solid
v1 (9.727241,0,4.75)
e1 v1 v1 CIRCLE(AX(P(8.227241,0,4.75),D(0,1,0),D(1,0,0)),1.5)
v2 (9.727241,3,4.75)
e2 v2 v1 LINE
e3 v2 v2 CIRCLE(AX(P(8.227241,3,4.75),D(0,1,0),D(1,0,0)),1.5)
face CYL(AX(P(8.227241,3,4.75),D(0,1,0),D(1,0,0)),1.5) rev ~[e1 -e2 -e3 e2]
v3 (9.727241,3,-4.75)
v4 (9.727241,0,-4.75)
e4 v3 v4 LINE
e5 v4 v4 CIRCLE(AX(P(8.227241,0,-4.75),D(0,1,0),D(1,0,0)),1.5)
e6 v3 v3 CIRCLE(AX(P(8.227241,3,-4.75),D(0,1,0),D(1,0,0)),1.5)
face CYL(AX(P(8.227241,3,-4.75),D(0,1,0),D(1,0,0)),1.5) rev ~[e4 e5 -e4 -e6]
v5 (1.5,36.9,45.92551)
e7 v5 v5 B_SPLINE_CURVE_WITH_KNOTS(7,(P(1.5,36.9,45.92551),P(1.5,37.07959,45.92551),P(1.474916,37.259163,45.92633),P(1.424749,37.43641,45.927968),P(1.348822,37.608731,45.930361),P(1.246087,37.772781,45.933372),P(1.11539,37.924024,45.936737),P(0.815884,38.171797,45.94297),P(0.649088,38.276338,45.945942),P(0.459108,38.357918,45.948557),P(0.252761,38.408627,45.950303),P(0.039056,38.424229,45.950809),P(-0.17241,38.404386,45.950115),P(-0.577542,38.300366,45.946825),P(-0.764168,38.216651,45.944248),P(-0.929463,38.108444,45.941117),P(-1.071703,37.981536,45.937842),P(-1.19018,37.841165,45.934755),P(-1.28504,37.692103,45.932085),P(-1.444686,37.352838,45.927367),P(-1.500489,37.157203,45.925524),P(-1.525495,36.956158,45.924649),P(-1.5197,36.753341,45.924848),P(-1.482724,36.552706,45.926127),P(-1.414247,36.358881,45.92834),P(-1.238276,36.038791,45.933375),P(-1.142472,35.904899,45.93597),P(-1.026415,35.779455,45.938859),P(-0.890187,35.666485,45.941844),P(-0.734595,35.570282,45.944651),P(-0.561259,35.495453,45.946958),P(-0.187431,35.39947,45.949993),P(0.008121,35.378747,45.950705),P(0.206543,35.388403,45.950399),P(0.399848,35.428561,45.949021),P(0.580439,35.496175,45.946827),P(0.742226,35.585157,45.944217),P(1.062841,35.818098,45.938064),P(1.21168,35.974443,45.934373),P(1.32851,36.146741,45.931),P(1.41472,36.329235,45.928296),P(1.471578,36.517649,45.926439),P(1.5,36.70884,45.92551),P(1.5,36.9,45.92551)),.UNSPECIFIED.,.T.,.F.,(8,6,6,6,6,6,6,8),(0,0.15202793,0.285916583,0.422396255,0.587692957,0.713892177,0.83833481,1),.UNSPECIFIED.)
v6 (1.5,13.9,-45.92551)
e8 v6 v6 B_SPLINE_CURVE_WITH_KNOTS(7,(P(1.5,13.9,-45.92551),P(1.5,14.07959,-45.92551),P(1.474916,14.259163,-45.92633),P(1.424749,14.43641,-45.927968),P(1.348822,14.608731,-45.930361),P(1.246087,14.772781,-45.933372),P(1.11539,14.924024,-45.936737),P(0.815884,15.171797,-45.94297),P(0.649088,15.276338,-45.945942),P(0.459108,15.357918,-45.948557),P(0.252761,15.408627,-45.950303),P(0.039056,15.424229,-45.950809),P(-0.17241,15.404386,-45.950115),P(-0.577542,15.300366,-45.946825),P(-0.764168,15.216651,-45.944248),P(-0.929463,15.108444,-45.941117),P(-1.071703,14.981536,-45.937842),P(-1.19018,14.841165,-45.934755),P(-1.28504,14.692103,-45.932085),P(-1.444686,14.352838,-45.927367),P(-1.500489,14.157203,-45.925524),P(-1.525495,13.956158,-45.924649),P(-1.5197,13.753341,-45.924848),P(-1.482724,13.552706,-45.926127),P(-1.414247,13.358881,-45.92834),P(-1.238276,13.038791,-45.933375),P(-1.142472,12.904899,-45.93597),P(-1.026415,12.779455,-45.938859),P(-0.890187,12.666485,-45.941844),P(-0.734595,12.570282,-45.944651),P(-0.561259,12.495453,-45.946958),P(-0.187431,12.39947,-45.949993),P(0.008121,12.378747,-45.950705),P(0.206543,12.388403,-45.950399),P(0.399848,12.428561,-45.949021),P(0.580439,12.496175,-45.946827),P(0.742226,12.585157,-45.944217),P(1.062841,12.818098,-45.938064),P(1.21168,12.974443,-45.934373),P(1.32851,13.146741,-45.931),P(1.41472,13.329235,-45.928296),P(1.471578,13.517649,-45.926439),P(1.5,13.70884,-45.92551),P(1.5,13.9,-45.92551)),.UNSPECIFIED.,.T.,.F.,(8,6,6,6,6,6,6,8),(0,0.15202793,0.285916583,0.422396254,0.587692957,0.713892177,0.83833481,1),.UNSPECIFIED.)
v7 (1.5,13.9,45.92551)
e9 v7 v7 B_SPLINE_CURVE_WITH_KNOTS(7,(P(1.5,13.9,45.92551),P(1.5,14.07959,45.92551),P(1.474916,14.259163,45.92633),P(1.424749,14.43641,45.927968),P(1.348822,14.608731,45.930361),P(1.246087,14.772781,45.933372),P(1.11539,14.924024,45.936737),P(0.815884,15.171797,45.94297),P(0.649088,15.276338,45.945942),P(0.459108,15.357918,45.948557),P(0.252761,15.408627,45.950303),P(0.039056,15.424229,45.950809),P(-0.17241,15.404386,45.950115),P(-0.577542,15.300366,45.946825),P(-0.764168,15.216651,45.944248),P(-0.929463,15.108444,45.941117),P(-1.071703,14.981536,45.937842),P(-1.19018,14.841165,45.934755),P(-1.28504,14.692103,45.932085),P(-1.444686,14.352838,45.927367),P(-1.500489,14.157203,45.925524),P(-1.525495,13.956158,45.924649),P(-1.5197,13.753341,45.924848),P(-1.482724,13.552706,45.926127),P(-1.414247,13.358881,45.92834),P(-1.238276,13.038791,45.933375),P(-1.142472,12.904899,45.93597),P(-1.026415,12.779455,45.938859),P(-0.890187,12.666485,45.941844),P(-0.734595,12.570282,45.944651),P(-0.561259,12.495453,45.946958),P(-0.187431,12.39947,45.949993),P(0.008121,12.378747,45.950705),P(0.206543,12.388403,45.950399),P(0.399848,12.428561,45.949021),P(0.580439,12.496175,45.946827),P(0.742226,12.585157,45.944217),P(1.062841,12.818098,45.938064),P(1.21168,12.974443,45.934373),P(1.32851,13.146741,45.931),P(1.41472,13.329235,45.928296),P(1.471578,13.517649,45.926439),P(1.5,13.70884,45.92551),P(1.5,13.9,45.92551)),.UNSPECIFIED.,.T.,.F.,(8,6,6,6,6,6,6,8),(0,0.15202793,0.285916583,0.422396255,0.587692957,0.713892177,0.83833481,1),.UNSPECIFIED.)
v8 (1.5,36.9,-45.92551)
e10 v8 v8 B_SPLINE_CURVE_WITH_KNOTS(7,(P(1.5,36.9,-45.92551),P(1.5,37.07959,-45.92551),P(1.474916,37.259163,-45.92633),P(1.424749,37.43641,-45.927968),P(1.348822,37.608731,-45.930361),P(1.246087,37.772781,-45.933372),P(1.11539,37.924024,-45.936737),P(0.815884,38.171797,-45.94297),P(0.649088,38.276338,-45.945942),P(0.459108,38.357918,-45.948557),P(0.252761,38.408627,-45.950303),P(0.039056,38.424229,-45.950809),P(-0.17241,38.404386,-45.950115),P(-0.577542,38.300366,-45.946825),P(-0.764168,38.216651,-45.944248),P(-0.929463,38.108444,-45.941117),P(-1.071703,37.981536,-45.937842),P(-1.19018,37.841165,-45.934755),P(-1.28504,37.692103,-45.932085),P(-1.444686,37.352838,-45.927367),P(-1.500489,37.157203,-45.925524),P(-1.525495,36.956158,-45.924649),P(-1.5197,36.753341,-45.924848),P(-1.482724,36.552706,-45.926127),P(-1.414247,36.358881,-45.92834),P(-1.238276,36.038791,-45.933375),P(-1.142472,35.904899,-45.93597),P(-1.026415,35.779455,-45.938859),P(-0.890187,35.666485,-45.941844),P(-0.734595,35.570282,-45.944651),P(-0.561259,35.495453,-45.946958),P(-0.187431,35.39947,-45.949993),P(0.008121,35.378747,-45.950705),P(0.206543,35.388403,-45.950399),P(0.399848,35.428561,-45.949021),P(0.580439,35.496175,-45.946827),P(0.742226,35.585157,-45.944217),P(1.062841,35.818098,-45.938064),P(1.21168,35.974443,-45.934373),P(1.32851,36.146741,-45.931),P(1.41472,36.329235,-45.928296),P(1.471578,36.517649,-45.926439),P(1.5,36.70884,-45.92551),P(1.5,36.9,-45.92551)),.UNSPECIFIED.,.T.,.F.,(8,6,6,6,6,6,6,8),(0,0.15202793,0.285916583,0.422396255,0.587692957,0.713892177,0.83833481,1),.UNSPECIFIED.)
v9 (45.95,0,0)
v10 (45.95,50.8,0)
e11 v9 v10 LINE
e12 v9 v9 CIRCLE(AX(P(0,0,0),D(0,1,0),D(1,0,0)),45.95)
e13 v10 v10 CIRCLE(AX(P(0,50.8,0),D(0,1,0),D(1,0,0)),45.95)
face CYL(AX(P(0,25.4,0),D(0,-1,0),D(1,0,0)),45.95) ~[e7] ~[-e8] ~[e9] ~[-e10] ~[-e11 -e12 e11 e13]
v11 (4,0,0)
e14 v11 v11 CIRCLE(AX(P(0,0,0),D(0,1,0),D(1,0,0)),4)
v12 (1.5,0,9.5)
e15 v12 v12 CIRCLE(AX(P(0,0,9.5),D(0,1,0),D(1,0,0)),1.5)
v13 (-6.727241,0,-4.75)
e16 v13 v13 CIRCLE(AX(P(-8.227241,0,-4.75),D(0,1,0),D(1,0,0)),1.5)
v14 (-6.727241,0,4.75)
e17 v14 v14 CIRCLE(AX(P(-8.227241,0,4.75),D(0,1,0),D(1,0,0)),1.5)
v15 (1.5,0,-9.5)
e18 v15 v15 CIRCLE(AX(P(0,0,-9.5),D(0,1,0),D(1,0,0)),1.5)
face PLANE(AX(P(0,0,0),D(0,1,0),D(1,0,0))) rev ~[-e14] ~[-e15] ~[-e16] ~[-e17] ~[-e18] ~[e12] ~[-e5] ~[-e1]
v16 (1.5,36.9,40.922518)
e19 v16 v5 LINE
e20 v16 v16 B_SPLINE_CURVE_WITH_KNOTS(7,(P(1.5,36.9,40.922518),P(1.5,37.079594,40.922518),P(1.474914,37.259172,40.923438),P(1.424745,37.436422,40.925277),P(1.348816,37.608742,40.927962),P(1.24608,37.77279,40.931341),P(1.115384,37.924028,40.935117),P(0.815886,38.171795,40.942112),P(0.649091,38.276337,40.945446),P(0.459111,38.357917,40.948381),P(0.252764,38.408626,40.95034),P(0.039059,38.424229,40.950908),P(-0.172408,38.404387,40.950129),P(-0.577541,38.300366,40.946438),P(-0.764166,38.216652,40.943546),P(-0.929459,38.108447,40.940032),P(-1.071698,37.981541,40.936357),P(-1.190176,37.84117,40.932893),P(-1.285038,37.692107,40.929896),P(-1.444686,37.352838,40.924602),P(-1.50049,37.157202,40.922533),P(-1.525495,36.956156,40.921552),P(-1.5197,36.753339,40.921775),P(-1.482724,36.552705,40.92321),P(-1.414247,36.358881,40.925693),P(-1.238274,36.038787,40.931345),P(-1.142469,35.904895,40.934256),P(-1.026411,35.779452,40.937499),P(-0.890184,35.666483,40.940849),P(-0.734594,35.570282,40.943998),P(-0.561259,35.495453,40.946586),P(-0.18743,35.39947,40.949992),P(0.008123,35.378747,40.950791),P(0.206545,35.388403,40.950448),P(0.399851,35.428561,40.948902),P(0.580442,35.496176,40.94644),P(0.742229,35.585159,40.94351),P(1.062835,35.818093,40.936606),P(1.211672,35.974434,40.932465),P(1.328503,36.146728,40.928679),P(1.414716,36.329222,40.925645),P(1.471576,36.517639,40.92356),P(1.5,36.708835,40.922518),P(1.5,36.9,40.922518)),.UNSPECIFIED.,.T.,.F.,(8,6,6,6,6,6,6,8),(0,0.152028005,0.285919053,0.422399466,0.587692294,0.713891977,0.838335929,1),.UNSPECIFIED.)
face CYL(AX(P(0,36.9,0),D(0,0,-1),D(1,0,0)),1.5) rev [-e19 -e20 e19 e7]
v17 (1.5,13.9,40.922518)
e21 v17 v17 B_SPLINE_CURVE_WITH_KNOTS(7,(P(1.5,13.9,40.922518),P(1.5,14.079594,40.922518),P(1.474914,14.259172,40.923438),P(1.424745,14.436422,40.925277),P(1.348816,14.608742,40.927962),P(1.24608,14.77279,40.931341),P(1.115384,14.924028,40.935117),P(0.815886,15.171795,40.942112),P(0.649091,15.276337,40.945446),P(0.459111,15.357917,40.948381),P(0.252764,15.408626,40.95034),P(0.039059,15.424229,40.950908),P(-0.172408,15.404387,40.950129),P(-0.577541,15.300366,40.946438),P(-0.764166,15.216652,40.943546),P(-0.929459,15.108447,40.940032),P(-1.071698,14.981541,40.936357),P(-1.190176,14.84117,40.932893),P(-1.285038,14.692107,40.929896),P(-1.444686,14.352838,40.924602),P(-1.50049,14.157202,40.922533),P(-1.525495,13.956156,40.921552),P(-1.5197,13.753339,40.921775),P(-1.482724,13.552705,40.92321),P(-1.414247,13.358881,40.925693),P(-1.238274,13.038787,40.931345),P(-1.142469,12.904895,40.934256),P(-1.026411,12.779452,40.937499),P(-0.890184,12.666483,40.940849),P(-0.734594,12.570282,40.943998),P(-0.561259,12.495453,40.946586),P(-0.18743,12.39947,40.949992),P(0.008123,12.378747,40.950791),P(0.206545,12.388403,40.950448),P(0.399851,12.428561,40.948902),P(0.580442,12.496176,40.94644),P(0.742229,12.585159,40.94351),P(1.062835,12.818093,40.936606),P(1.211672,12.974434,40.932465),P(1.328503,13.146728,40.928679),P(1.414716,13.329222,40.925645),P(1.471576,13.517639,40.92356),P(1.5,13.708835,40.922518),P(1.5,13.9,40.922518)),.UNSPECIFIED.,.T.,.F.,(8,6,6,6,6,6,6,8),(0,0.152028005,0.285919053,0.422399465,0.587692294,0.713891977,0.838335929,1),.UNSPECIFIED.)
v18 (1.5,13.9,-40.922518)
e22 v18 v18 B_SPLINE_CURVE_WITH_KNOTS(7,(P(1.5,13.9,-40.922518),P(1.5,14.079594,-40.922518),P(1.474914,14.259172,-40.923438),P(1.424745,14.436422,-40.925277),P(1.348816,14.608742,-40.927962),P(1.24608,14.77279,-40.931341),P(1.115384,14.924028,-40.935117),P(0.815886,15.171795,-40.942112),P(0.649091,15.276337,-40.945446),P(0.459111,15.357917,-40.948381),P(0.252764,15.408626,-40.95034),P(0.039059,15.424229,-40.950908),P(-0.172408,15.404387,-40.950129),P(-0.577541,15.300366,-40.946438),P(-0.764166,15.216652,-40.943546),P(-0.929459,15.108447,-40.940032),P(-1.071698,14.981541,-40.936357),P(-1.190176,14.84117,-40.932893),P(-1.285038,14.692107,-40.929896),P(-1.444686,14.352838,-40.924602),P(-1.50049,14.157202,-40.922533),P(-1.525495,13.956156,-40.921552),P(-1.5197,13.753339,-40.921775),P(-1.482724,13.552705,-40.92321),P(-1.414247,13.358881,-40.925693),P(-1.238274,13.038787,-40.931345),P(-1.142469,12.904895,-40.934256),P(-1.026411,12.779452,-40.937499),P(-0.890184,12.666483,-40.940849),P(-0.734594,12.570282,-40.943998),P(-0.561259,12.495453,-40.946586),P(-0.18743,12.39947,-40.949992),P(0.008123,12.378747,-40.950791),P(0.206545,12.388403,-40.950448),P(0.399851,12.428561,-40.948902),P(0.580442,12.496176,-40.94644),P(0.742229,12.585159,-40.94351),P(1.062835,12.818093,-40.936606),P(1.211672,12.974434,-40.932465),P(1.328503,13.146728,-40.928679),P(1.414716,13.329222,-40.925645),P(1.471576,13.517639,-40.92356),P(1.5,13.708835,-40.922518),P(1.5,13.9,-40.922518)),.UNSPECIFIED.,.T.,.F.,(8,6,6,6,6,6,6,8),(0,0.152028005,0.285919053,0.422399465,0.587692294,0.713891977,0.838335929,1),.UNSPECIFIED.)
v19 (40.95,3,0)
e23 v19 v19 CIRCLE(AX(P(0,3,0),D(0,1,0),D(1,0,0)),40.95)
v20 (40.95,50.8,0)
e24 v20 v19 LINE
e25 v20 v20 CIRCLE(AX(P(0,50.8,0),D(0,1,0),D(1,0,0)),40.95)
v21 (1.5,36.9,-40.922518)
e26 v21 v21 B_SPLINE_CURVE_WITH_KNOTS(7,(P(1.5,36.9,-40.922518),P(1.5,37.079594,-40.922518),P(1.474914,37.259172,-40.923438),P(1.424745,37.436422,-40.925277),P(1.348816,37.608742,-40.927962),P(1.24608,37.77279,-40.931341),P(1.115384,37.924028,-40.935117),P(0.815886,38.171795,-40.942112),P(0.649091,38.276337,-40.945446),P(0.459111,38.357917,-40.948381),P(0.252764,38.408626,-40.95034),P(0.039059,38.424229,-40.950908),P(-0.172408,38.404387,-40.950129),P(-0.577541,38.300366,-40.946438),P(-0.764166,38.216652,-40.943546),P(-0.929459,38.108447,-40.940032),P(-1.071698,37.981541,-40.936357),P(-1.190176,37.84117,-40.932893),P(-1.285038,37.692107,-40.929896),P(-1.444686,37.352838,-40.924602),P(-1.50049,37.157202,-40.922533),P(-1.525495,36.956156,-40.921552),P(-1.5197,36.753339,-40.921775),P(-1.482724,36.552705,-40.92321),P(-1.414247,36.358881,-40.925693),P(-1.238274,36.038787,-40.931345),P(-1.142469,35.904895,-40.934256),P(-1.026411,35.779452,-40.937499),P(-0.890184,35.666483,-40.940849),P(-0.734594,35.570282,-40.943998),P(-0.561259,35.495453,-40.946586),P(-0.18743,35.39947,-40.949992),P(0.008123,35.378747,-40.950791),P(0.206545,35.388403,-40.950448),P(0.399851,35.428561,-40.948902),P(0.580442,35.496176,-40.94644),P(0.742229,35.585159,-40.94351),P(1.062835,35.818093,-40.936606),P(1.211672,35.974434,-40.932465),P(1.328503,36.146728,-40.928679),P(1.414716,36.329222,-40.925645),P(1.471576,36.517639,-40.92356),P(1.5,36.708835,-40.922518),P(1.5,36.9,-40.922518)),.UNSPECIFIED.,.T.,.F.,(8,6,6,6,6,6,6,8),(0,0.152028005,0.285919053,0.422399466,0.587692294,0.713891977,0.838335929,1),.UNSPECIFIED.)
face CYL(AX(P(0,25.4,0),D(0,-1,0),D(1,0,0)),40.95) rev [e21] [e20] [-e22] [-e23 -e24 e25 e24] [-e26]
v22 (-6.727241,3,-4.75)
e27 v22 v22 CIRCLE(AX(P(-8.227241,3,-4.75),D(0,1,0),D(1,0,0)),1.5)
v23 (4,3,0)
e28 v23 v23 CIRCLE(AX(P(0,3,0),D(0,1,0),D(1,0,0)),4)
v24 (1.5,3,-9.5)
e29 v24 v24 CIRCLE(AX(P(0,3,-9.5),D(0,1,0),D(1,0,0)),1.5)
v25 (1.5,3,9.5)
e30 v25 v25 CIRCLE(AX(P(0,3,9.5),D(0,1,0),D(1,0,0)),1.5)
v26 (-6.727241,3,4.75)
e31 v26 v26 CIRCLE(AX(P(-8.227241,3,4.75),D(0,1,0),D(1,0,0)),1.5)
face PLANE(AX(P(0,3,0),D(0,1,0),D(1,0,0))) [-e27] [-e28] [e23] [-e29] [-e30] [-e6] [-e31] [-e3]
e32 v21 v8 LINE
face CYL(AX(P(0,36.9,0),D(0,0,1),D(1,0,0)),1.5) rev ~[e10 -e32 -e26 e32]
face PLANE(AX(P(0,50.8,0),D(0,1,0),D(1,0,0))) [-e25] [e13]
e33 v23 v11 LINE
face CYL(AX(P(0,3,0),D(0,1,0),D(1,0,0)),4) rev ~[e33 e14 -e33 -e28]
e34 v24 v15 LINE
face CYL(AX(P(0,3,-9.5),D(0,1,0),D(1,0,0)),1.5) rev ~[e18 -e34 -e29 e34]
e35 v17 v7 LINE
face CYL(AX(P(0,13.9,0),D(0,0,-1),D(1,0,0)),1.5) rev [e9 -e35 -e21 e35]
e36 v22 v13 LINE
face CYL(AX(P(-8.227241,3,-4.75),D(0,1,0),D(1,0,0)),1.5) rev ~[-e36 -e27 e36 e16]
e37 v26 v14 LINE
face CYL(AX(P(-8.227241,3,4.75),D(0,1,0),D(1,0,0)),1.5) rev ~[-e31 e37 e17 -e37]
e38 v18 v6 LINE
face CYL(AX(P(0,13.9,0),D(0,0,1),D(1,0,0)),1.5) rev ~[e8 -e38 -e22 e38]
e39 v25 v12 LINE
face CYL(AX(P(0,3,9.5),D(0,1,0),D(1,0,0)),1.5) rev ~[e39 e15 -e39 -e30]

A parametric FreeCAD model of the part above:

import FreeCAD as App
import Part
import Sketcher

V = App.Vector

doc = App.newDocument("Part")
body = doc.addObject("PartDesign::Body", "Body")

# Sketch on XZ plane
sketch1 = body.newObject("Sketcher::SketchObject", "Sketch")
sketch1.AttachmentSupport = (doc.getObject("XZ_Plane"), [""])
sketch1.MapMode = "FlatFace"
sketch1.addGeometry(Part.Circle(V(0, 0, 0), V(0, 0, 1), 46), False)
sketch1.addConstraint([
    Sketcher.Constraint("Coincident", 0, 3, -1, 1),
    Sketcher.Constraint("Diameter", 0, 91.9),
])
pad1 = body.newObject("PartDesign::Pad", "Pad")
pad1.Profile = sketch1
pad1.Length = 3
pad1.Reversed = True

# Sketch on XZ plane
sketch2 = body.newObject("Sketcher::SketchObject", "Sketch001")
sketch2.AttachmentSupport = (doc.getObject("XZ_Plane"), [""])
sketch2.MapMode = "FlatFace"
sketch2.AttachmentOffset = App.Placement(V(0, 0, -3), App.Rotation())
sketch2.addGeometry([
    Part.Circle(V(0, 0, 0), V(0, 0, 1), 46),
    Part.Circle(V(0, 0, 0), V(0, 0, 1), 41),
], False)
sketch2.addConstraint([
    Sketcher.Constraint("Coincident", 0, 3, -1, 1),
    Sketcher.Constraint("Coincident", 1, 3, -1, 1),
    Sketcher.Constraint("Diameter", 0, 91.9),
    Sketcher.Constraint("Diameter", 1, 81.9),
])
pad2 = body.newObject("PartDesign::Pad", "Pad001")
pad2.Profile = sketch2
pad2.Length = 22.4
pad2.Reversed = True

# Sketch on XY plane
sketch3 = body.newObject("Sketcher::SketchObject", "Sketch002")
sketch3.AttachmentSupport = (doc.getObject("XY_Plane"), [""])
sketch3.MapMode = "FlatFace"
sketch3.addGeometry([
    Part.Circle(V(0, 13.9, 0), V(0, 0, 1), 1.5),
    Part.Circle(V(0, -13.9, 0), V(0, 0, 1), 1.5),
], False)
sketch3.addConstraint([
    Sketcher.Constraint("Equal", 0, 1),
    Sketcher.Constraint("Symmetric", 0, 3, 1, 3, -1, 1),
    Sketcher.Constraint("PointOnObject", 0, 3, -2),
    Sketcher.Constraint("Diameter", 0, 3.0),
    Sketcher.Constraint("DistanceY", -1, 1, 0, 3, 13.9),
])
pocket1 = body.newObject("PartDesign::Pocket", "Pocket")
pocket1.Profile = sketch3
pocket1.Type = "ThroughAll"
pocket1.Midplane = True

# Sketch on XZ plane
sketch4 = body.newObject("Sketcher::SketchObject", "Sketch003")
sketch4.AttachmentSupport = (doc.getObject("XZ_Plane"), [""])
sketch4.MapMode = "FlatFace"
sketch4.AttachmentOffset = App.Placement(V(0, 0, -25.4), App.Rotation())
sketch4.addGeometry([
    Part.Circle(V(0, 0, 0), V(0, 0, 1), 46),
    Part.Circle(V(0, 0, 0), V(0, 0, 1), 41),
], False)
sketch4.addConstraint([
    Sketcher.Constraint("Coincident", 0, 3, -1, 1),
    Sketcher.Constraint("Coincident", 1, 3, -1, 1),
    Sketcher.Constraint("Diameter", 0, 91.9),
    Sketcher.Constraint("Diameter", 1, 81.9),
])
pad3 = body.newObject("PartDesign::Pad", "Pad002")
pad3.Profile = sketch4
pad3.Length = 25.4
pad3.Reversed = True

# Sketch on XY plane
sketch5 = body.newObject("Sketcher::SketchObject", "Sketch004")
sketch5.AttachmentSupport = (doc.getObject("XY_Plane"), [""])
sketch5.MapMode = "FlatFace"
sketch5.addGeometry(Part.Circle(V(0, 36.9, 0), V(0, 0, 1), 1.5), False)
sketch5.addConstraint([
    Sketcher.Constraint("PointOnObject", 0, 3, -2),
    Sketcher.Constraint("Diameter", 0, 3.0),
    Sketcher.Constraint("DistanceY", -1, 1, 0, 3, 36.9),
])
pocket2 = body.newObject("PartDesign::Pocket", "Pocket001")
pocket2.Profile = sketch5
pocket2.Type = "ThroughAll"
pocket2.Midplane = True

# Sketch on XZ plane
sketch6 = body.newObject("Sketcher::SketchObject", "Sketch005")
sketch6.AttachmentSupport = (doc.getObject("XZ_Plane"), [""])
sketch6.MapMode = "FlatFace"
sketch6.AttachmentOffset = App.Placement(V(0, 0, -3), App.Rotation())
sketch6.addGeometry([
    Part.Circle(V(0, -9.5, 0), V(0, 0, 1), 1.5),  # 0
    Part.Circle(V(8.2, -4.8, 0), V(0, 0, 1), 1.5),  # 1
    Part.Circle(V(8.2, 4.8, 0), V(0, 0, 1), 1.5),  # 2
    Part.Circle(V(0, 9.5, 0), V(0, 0, 1), 1.5),  # 3
    Part.Circle(V(-8.2, 4.8, 0), V(0, 0, 1), 1.5),  # 4
    Part.Circle(V(-8.2, -4.8, 0), V(0, 0, 1), 1.5),  # 5
], False)
sketch6.addConstraint([
    Sketcher.Constraint("Equal", 0, 1),
    Sketcher.Constraint("Equal", 1, 2),
    Sketcher.Constraint("Equal", 2, 3),
    Sketcher.Constraint("Equal", 3, 4),
    Sketcher.Constraint("Equal", 4, 5),
    Sketcher.Constraint("Symmetric", 0, 3, 3, 3, -1, 1),
    Sketcher.Constraint("Symmetric", 1, 3, 4, 3, -1, 1),
    Sketcher.Constraint("Symmetric", 2, 3, 5, 3, -1, 1),
    Sketcher.Constraint("Symmetric", 2, 3, 4, 3, -2),
    Sketcher.Constraint("PointOnObject", 0, 3, -2),
    Sketcher.Constraint("Diameter", 0, 3.0),
    Sketcher.Constraint("DistanceY", 0, 3, 3, 3, 19.0),
    Sketcher.Constraint("DistanceY", 1, 3, 2, 3, 9.5),
    Sketcher.Constraint("DistanceX", -1, 1, 1, 3, 8.227241),
])
pocket3 = body.newObject("PartDesign::Pocket", "Pocket002")
pocket3.Profile = sketch6
pocket3.Length = 10
pocket3.Reversed = True

# Sketch on XZ plane
sketch7 = body.newObject("Sketcher::SketchObject", "Sketch006")
sketch7.AttachmentSupport = (doc.getObject("XZ_Plane"), [""])
sketch7.MapMode = "FlatFace"
sketch7.AttachmentOffset = App.Placement(V(0, 0, -3), App.Rotation())
sketch7.addGeometry(Part.Circle(V(0, 0, 0), V(0, 0, 1), 4), False)
sketch7.addConstraint([
    Sketcher.Constraint("Coincident", 0, 3, -1, 1),
    Sketcher.Constraint("Diameter", 0, 8.0),
])
pocket4 = body.newObject("PartDesign::Pocket", "Pocket003")
pocket4.Profile = sketch7
pocket4.Length = 10
pocket4.Reversed = True

doc.recompute()
